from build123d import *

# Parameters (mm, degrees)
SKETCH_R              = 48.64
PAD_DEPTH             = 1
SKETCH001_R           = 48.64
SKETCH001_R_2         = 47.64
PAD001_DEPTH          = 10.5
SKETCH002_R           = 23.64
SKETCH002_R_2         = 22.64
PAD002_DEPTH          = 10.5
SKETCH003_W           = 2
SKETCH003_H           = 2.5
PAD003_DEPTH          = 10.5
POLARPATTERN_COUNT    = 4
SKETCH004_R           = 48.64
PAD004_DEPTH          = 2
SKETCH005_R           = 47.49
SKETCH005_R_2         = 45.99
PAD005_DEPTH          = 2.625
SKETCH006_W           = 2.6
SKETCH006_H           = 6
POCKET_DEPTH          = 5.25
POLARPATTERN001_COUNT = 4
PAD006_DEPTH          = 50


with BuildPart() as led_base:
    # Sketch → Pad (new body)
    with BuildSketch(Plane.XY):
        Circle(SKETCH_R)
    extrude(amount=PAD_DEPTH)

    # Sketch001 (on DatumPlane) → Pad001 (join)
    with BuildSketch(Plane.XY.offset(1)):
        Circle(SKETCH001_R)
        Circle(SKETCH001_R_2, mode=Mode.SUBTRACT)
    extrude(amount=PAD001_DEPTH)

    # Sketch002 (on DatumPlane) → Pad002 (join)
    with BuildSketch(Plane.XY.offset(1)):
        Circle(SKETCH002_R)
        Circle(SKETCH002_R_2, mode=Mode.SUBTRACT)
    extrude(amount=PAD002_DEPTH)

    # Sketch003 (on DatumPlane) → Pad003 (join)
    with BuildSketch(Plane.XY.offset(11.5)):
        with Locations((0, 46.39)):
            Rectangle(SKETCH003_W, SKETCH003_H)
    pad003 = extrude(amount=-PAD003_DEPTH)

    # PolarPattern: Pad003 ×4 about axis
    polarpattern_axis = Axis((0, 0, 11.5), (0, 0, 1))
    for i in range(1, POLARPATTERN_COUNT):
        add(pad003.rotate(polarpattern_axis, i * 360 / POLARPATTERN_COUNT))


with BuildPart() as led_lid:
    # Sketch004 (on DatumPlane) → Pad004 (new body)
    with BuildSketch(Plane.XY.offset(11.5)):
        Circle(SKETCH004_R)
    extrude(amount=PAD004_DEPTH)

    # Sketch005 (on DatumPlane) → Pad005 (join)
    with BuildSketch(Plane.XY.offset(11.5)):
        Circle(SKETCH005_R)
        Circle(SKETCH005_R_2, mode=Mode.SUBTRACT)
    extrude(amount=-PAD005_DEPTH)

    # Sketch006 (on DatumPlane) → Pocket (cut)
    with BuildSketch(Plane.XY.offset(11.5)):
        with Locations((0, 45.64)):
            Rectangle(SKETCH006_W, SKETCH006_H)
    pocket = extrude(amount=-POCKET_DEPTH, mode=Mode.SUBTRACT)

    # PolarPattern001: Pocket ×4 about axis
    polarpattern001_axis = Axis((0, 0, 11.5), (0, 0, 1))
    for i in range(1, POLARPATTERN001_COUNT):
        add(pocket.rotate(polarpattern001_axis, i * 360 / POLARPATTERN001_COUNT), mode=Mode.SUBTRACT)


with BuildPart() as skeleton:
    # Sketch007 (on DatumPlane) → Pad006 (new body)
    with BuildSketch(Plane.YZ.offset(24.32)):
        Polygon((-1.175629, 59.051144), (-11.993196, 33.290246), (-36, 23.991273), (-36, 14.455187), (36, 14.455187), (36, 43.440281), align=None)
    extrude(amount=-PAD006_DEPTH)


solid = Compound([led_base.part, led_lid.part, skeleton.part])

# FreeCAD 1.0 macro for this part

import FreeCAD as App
import Part
import Sketcher


def add_polygon(sketch, points):
    """Adds a closed chain of lines whose ends are joined by coincident constraints."""
    first, n = sketch.GeometryCount, len(points)
    for a, b in zip(points, points[1:] + points[:1]):
        sketch.addGeometry(Part.LineSegment(App.Vector(*a, 0), App.Vector(*b, 0)), False)
    for i in range(n):
        sketch.addConstraint(Sketcher.Constraint("Coincident", first + i, 2, first + (i + 1) % n, 1))

doc = App.newDocument("Part")
body = doc.addObject("PartDesign::Body", "Body")

# Sketch on XY plane
sketch1 = body.newObject("Sketcher::SketchObject", "Sketch")
sketch1.AttachmentSupport = (doc.getObject("XY_Plane"), [""])
sketch1.MapMode = "FlatFace"
sketch1.addGeometry(Part.Circle(App.Vector(0, 0, 0), App.Vector(0, 0, 1), 48.64), False)
sketch1.addConstraint(Sketcher.Constraint("Coincident", 0, 3, -1, 1))
sketch1.addConstraint(Sketcher.Constraint("Diameter", 0, 97.28))
pad1 = body.newObject("PartDesign::Pad", "Pad")
pad1.Profile = sketch1
pad1.Length = 1

# Sketch on XY plane
sketch2 = body.newObject("Sketcher::SketchObject", "Sketch001")
sketch2.AttachmentSupport = (doc.getObject("XY_Plane"), [""])
sketch2.MapMode = "FlatFace"
sketch2.AttachmentOffset = App.Placement(App.Vector(0, 0, 1), App.Rotation())
sketch2.addGeometry(Part.Circle(App.Vector(0, 0, 0), App.Vector(0, 0, 1), 48.64), False)
sketch2.addGeometry(Part.Circle(App.Vector(0, 0, 0), App.Vector(0, 0, 1), 47.64), False)
sketch2.addConstraint(Sketcher.Constraint("Coincident", 0, 3, -1, 1))
sketch2.addConstraint(Sketcher.Constraint("Coincident", 1, 3, -1, 1))
sketch2.addConstraint(Sketcher.Constraint("Diameter", 0, 97.28))
sketch2.addConstraint(Sketcher.Constraint("Diameter", 1, 95.28))
pad2 = body.newObject("PartDesign::Pad", "Pad001")
pad2.Profile = sketch2
pad2.Length = 10.5

# Sketch on XY plane
sketch3 = body.newObject("Sketcher::SketchObject", "Sketch002")
sketch3.AttachmentSupport = (doc.getObject("XY_Plane"), [""])
sketch3.MapMode = "FlatFace"
sketch3.AttachmentOffset = App.Placement(App.Vector(0, 0, 1), App.Rotation())
sketch3.addGeometry(Part.Circle(App.Vector(0, 0, 0), App.Vector(0, 0, 1), 23.64), False)
sketch3.addGeometry(Part.Circle(App.Vector(0, 0, 0), App.Vector(0, 0, 1), 22.64), False)
sketch3.addConstraint(Sketcher.Constraint("Coincident", 0, 3, -1, 1))
sketch3.addConstraint(Sketcher.Constraint("Coincident", 1, 3, -1, 1))
sketch3.addConstraint(Sketcher.Constraint("Diameter", 0, 47.28))
sketch3.addConstraint(Sketcher.Constraint("Diameter", 1, 45.28))
pad3 = body.newObject("PartDesign::Pad", "Pad002")
pad3.Profile = sketch3
pad3.Length = 10.5

# Sketch on XY plane
sketch4 = body.newObject("Sketcher::SketchObject", "Sketch003")
sketch4.AttachmentSupport = (doc.getObject("XY_Plane"), [""])
sketch4.MapMode = "FlatFace"
sketch4.AttachmentOffset = App.Placement(App.Vector(0, 0, 11.5), App.Rotation())
add_polygon(sketch4, [(-1, 47.64), (-1, 45.14), (1, 45.14), (1, 47.64)])  # lines 0-3
sketch4.addConstraint(Sketcher.Constraint("Vertical", 0))
sketch4.addConstraint(Sketcher.Constraint("Horizontal", 1))
sketch4.addConstraint(Sketcher.Constraint("Vertical", 2))
sketch4.addConstraint(Sketcher.Constraint("Horizontal", 3))
sketch4.addConstraint(Sketcher.Constraint("DistanceX", 1, 1, 1, 2, 2.0))
sketch4.addConstraint(Sketcher.Constraint("DistanceY", 0, 2, 0, 1, 2.5))
sketch4.addConstraint(Sketcher.Constraint("DistanceX", 0, 2, -1, 1, 1.0))
sketch4.addConstraint(Sketcher.Constraint("DistanceY", -1, 1, 0, 2, 45.14))
pad4 = body.newObject("PartDesign::Pad", "Pad003")
pad4.Profile = sketch4
pad4.Length = 10.5
pad4.Reversed = True
doc.recompute()

polarpattern = body.newObject("PartDesign::PolarPattern", "PolarPattern")
polarpattern.Originals = [pad4]
polarpattern.Axis = (doc.getObject("Z_Axis"), [""])
polarpattern.Angle = 360
polarpattern.Occurrences = 4
body.Tip = polarpattern
body2 = doc.addObject("PartDesign::Body", "Body001")

# Sketch on XY plane
sketch5 = body2.newObject("Sketcher::SketchObject", "Sketch004")
sketch5.AttachmentSupport = (doc.getObject("XY_Plane001"), [""])
sketch5.MapMode = "FlatFace"
sketch5.AttachmentOffset = App.Placement(App.Vector(0, 0, 11.5), App.Rotation())
sketch5.addGeometry(Part.Circle(App.Vector(0, 0, 0), App.Vector(0, 0, 1), 48.64), False)
sketch5.addConstraint(Sketcher.Constraint("Coincident", 0, 3, -1, 1))
sketch5.addConstraint(Sketcher.Constraint("Diameter", 0, 97.28))
pad5 = body2.newObject("PartDesign::Pad", "Pad004")
pad5.Profile = sketch5
pad5.Length = 2

# Sketch on XY plane
sketch6 = body2.newObject("Sketcher::SketchObject", "Sketch005")
sketch6.AttachmentSupport = (doc.getObject("XY_Plane001"), [""])
sketch6.MapMode = "FlatFace"
sketch6.AttachmentOffset = App.Placement(App.Vector(0, 0, 11.5), App.Rotation())
sketch6.addGeometry(Part.Circle(App.Vector(0, 0, 0), App.Vector(0, 0, 1), 47.49), False)
sketch6.addGeometry(Part.Circle(App.Vector(0, 0, 0), App.Vector(0, 0, 1), 45.99), False)
sketch6.addConstraint(Sketcher.Constraint("Coincident", 0, 3, -1, 1))
sketch6.addConstraint(Sketcher.Constraint("Coincident", 1, 3, -1, 1))
sketch6.addConstraint(Sketcher.Constraint("Diameter", 0, 94.98))
sketch6.addConstraint(Sketcher.Constraint("Diameter", 1, 91.98))
pad6 = body2.newObject("PartDesign::Pad", "Pad005")
pad6.Profile = sketch6
pad6.Length = 2.625
pad6.Reversed = True

# Sketch on XY plane
sketch7 = body2.newObject("Sketcher::SketchObject", "Sketch006")
sketch7.AttachmentSupport = (doc.getObject("XY_Plane001"), [""])
sketch7.MapMode = "FlatFace"
sketch7.AttachmentOffset = App.Placement(App.Vector(0, 0, 11.5), App.Rotation())
add_polygon(sketch7, [(-1.3, 48.64), (-1.3, 42.64), (1.3, 42.64), (1.3, 48.64)])  # lines 0-3
sketch7.addConstraint(Sketcher.Constraint("Vertical", 0))
sketch7.addConstraint(Sketcher.Constraint("Horizontal", 1))
sketch7.addConstraint(Sketcher.Constraint("Vertical", 2))
sketch7.addConstraint(Sketcher.Constraint("Horizontal", 3))
sketch7.addConstraint(Sketcher.Constraint("DistanceY", 0, 2, 0, 1, 6.0))
sketch7.addConstraint(Sketcher.Constraint("DistanceX", 1, 1, 1, 2, 2.6))
sketch7.addConstraint(Sketcher.Constraint("DistanceX", 0, 2, -1, 1, 1.3))
sketch7.addConstraint(Sketcher.Constraint("DistanceY", -1, 1, 0, 2, 42.64))
pocket1 = body2.newObject("PartDesign::Pocket", "Pocket")
pocket1.Profile = sketch7
pocket1.Length = 5.25
doc.recompute()

polarpattern2 = body2.newObject("PartDesign::PolarPattern", "PolarPattern001")
polarpattern2.Originals = [pocket1]
polarpattern2.Axis = (doc.getObject("Z_Axis001"), [""])
polarpattern2.Angle = 360
polarpattern2.Occurrences = 4
body2.Tip = polarpattern2
body3 = doc.addObject("PartDesign::Body", "Body002")

# Sketch on YZ plane
sketch8 = body3.newObject("Sketcher::SketchObject", "Sketch007")
sketch8.AttachmentSupport = (doc.getObject("YZ_Plane002"), [""])
sketch8.MapMode = "FlatFace"
sketch8.AttachmentOffset = App.Placement(App.Vector(0, 0, 24.32), App.Rotation())
add_polygon(sketch8, [(-1.175629, 59.051144), (-11.993196, 33.290246), (-36, 23.991273), (-36, 14.455187), (36, 14.455187), (36, 43.440281)])  # lines 0-5
sketch8.addConstraint(Sketcher.Constraint("Vertical", 2))
sketch8.addConstraint(Sketcher.Constraint("Horizontal", 3))
sketch8.addConstraint(Sketcher.Constraint("Vertical", 4))
sketch8.addConstraint(Sketcher.Constraint("Perpendicular", 0, 5))
sketch8.addConstraint(Sketcher.Constraint("DistanceX", 3, 1, 3, 2, 72.0))
sketch8.addConstraint(Sketcher.Constraint("DistanceX", 1, 2, -1, 1, 36.0))
sketch8.addConstraint(Sketcher.Constraint("Distance", 0, 27.94))
sketch8.addConstraint(Sketcher.Constraint("Distance", 5, 40.320298))
sketch8.addConstraint(Sketcher.Constraint("DistanceY", 2, 2, 2, 1, 9.536086))
sketch8.addConstraint(Sketcher.Constraint("DistanceY", 4, 1, 4, 2, 28.985094))
sketch8.addConstraint(Sketcher.Constraint("DistanceY", -1, 1, 4, 2, 43.440281))
sketch8.addConstraint(Sketcher.Constraint("DistanceX", 5, 2, -1, 1, 1.175629))
pad7 = body3.newObject("PartDesign::Pad", "Pad006")
pad7.Profile = sketch8
pad7.Length = 50
pad7.Reversed = True

doc.recompute()
